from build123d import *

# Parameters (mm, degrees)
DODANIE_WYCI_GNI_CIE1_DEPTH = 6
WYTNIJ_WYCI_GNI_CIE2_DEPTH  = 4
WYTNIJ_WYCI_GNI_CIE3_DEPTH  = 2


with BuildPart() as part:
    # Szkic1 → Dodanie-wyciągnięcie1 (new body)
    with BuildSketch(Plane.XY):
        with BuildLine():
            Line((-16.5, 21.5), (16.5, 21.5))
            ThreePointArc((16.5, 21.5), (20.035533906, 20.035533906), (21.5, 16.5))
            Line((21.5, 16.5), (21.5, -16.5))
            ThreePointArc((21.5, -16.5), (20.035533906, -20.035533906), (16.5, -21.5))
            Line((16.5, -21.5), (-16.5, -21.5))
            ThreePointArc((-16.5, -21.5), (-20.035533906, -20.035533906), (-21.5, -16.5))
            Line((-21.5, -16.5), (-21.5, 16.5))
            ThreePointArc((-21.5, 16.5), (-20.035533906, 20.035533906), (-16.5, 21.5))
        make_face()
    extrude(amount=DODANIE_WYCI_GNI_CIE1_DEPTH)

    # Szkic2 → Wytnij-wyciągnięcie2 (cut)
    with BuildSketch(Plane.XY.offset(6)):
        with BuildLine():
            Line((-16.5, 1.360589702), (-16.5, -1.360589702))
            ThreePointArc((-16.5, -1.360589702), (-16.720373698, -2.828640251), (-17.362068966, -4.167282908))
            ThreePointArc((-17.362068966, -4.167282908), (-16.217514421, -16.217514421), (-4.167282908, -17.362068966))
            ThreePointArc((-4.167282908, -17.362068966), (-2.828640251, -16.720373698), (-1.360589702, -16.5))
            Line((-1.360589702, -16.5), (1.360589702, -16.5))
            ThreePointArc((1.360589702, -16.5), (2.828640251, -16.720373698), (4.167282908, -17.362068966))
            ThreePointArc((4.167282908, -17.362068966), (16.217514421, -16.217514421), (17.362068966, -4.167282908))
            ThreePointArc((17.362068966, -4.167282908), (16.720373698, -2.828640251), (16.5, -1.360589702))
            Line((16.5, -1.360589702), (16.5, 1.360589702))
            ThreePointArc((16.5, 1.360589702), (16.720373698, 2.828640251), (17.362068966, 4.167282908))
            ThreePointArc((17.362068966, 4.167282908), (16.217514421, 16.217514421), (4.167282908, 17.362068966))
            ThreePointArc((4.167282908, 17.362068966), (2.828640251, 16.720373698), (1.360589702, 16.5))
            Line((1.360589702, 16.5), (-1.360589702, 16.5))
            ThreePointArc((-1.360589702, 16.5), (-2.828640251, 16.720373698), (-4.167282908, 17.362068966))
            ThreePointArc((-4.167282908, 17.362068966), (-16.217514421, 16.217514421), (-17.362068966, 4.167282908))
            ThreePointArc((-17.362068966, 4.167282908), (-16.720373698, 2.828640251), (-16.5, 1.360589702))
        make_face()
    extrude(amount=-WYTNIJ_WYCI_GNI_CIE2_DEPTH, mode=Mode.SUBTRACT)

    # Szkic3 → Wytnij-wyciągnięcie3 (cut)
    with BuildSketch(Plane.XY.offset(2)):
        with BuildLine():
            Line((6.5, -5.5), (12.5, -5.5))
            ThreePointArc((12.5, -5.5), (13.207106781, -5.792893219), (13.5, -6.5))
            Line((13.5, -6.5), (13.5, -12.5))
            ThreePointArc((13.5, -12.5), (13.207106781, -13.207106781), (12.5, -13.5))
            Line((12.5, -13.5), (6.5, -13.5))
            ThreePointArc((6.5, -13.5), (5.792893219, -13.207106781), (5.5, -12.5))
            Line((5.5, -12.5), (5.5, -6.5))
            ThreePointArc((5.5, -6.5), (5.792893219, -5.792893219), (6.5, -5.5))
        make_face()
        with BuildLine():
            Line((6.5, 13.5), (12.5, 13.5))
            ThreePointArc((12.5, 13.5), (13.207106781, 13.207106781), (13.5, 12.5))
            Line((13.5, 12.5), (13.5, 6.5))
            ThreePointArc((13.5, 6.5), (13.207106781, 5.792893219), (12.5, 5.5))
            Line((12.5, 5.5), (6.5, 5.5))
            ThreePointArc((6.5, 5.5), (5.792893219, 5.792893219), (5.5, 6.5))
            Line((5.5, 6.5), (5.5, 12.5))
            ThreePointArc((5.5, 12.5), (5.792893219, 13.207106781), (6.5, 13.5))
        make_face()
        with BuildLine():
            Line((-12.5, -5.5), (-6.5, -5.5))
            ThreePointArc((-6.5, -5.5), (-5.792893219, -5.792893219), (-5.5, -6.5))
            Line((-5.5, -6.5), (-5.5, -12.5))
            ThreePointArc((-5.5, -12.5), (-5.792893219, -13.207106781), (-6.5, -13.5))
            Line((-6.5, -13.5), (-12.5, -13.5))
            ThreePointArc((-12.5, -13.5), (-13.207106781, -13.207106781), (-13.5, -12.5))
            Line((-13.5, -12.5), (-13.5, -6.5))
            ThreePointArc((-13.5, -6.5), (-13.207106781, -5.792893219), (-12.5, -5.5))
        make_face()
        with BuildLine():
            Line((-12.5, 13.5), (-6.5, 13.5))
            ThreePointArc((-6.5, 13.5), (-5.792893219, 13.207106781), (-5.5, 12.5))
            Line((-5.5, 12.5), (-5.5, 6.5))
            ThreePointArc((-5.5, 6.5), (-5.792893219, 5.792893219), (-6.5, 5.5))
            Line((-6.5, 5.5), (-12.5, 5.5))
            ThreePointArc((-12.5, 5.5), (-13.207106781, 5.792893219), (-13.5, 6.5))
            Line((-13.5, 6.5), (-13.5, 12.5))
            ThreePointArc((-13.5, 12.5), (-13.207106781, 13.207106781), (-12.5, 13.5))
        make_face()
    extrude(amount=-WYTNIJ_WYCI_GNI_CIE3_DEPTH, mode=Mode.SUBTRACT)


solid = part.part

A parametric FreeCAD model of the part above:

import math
import FreeCAD as App
import Part
import Sketcher

doc = App.newDocument("Part")
body = doc.addObject("PartDesign::Body", "Body")

# Sketch on XY plane
sketch1 = doc.addObject("Sketcher::SketchObject", "Sketch")
body.addObject(sketch1)
sketch1.AttachmentSupport = (doc.XY_Plane, [""])
sketch1.MapMode = "FlatFace"
sketch1.addGeometry(Part.LineSegment(App.Vector(16, 22, 0), App.Vector(-16, 22, 0)), False)
sketch1.addGeometry(Part.ArcOfCircle(Part.Circle(App.Vector(-16, 16, 0), App.Vector(0, 0, 1), 5), math.radians(90), math.radians(180)), False)
sketch1.addGeometry(Part.LineSegment(App.Vector(-22, 16, 0), App.Vector(-22, -16, 0)), False)
sketch1.addGeometry(Part.ArcOfCircle(Part.Circle(App.Vector(-16, -16, 0), App.Vector(0, 0, 1), 5), math.radians(180), math.radians(270)), False)
sketch1.addGeometry(Part.LineSegment(App.Vector(-16, -22, 0), App.Vector(16, -22, 0)), False)
sketch1.addGeometry(Part.ArcOfCircle(Part.Circle(App.Vector(16, -16, 0), App.Vector(0, 0, 1), 5), math.radians(-90), math.radians(0)), False)
sketch1.addGeometry(Part.LineSegment(App.Vector(22, -16, 0), App.Vector(22, 16, 0)), False)
sketch1.addGeometry(Part.ArcOfCircle(Part.Circle(App.Vector(16, 16, 0), App.Vector(0, 0, 1), 5), math.radians(0), math.radians(90)), False)
sketch1.addConstraint(Sketcher.Constraint("Tangent", 0, 2, 1, 1))
sketch1.addConstraint(Sketcher.Constraint("Tangent", 1, 2, 2, 1))
sketch1.addConstraint(Sketcher.Constraint("Tangent", 2, 2, 3, 1))
sketch1.addConstraint(Sketcher.Constraint("Tangent", 3, 2, 4, 1))
sketch1.addConstraint(Sketcher.Constraint("Tangent", 4, 2, 5, 1))
sketch1.addConstraint(Sketcher.Constraint("Tangent", 5, 2, 6, 1))
sketch1.addConstraint(Sketcher.Constraint("Tangent", 6, 2, 7, 1))
sketch1.addConstraint(Sketcher.Constraint("Tangent", 7, 2, 0, 1))
sketch1.addConstraint(Sketcher.Constraint("Horizontal", 0))
sketch1.addConstraint(Sketcher.Constraint("Vertical", 2))
sketch1.addConstraint(Sketcher.Constraint("Horizontal", 4))
sketch1.addConstraint(Sketcher.Constraint("Vertical", 6))
sketch1.addConstraint(Sketcher.Constraint("Equal", 1, 3))
sketch1.addConstraint(Sketcher.Constraint("Equal", 3, 5))
sketch1.addConstraint(Sketcher.Constraint("Equal", 5, 7))
sketch1.addConstraint(Sketcher.Constraint("Symmetric", 1, 3, 5, 3, -1, 1))
sketch1.addConstraint(Sketcher.Constraint("Equal", 4, 2))
sketch1.addConstraint(Sketcher.Constraint("Radius", 1, 5.0))
sketch1.addConstraint(Sketcher.Constraint("DistanceX", 0, 2, 0, 1, 33.0))
pad1 = doc.addObject("PartDesign::Pad", "Pad")
body.addObject(pad1)
pad1.Profile = sketch1
pad1.Length = 6

# Sketch on XY plane
sketch2 = doc.addObject("Sketcher::SketchObject", "Sketch001")
body.addObject(sketch2)
sketch2.AttachmentSupport = (doc.XY_Plane, [""])
sketch2.MapMode = "FlatFace"
sketch2.AttachmentOffset = App.Placement(App.Vector(0, 0, 6), App.Rotation())
sketch2.addGeometry(Part.LineSegment(App.Vector(-16.5, 1.4, 0), App.Vector(-16.5, -1.4, 0)), False)
sketch2.addGeometry(Part.ArcOfCircle(Part.Circle(App.Vector(-21.5, -1.4, 0), App.Vector(0, 0, 1), 5), math.radians(-34), math.radians(0)), False)
sketch2.addGeometry(Part.ArcOfCircle(Part.Circle(App.Vector(-9.5, -9.5, 0), App.Vector(0, 0, 1), 9.5), math.radians(146), math.radians(304)), False)
sketch2.addGeometry(Part.ArcOfCircle(Part.Circle(App.Vector(-1.4, -21.5, 0), App.Vector(0, 0, 1), 5), math.radians(90), math.radians(124)), False)
sketch2.addGeometry(Part.LineSegment(App.Vector(-1.4, -16.5, 0), App.Vector(1.4, -16.5, 0)), False)
sketch2.addGeometry(Part.ArcOfCircle(Part.Circle(App.Vector(1.4, -21.5, 0), App.Vector(0, 0, 1), 5), math.radians(56), math.radians(90)), False)
sketch2.addGeometry(Part.ArcOfCircle(Part.Circle(App.Vector(9.5, -9.5, 0), App.Vector(0, 0, 1), 9.5), math.radians(-124), math.radians(34)), False)
sketch2.addGeometry(Part.ArcOfCircle(Part.Circle(App.Vector(21.5, -1.4, 0), App.Vector(0, 0, 1), 5), math.radians(180), math.radians(214)), False)
sketch2.addGeometry(Part.LineSegment(App.Vector(16.5, -1.4, 0), App.Vector(16.5, 1.4, 0)), False)
sketch2.addGeometry(Part.ArcOfCircle(Part.Circle(App.Vector(21.5, 1.4, 0), App.Vector(0, 0, 1), 5), math.radians(146), math.radians(180)), False)
sketch2.addGeometry(Part.ArcOfCircle(Part.Circle(App.Vector(9.5, 9.5, 0), App.Vector(0, 0, 1), 9.5), math.radians(-34), math.radians(124)), False)
sketch2.addGeometry(Part.ArcOfCircle(Part.Circle(App.Vector(1.4, 21.5, 0), App.Vector(0, 0, 1), 5), math.radians(-90), math.radians(-56)), False)
sketch2.addGeometry(Part.LineSegment(App.Vector(1.4, 16.5, 0), App.Vector(-1.4, 16.5, 0)), False)
sketch2.addGeometry(Part.ArcOfCircle(Part.Circle(App.Vector(-1.4, 21.5, 0), App.Vector(0, 0, 1), 5), math.radians(-124), math.radians(-90)), False)
sketch2.addGeometry(Part.ArcOfCircle(Part.Circle(App.Vector(-9.5, 9.5, 0), App.Vector(0, 0, 1), 9.5), math.radians(56), math.radians(214)), False)
sketch2.addGeometry(Part.ArcOfCircle(Part.Circle(App.Vector(-21.5, 1.4, 0), App.Vector(0, 0, 1), 5), math.radians(0), math.radians(34)), False)
sketch2.addConstraint(Sketcher.Constraint("Tangent", 0, 2, 1, 2))
sketch2.addConstraint(Sketcher.Constraint("Tangent", 1, 1, 2, 1))
sketch2.addConstraint(Sketcher.Constraint("Tangent", 2, 2, 3, 2))
sketch2.addConstraint(Sketcher.Constraint("Tangent", 3, 1, 4, 1))
sketch2.addConstraint(Sketcher.Constraint("Tangent", 4, 2, 5, 2))
sketch2.addConstraint(Sketcher.Constraint("Tangent", 5, 1, 6, 1))
sketch2.addConstraint(Sketcher.Constraint("Tangent", 6, 2, 7, 2))
sketch2.addConstraint(Sketcher.Constraint("Tangent", 7, 1, 8, 1))
sketch2.addConstraint(Sketcher.Constraint("Tangent", 8, 2, 9, 2))
sketch2.addConstraint(Sketcher.Constraint("Tangent", 9, 1, 10, 1))
sketch2.addConstraint(Sketcher.Constraint("Tangent", 10, 2, 11, 2))
sketch2.addConstraint(Sketcher.Constraint("Tangent", 11, 1, 12, 1))
sketch2.addConstraint(Sketcher.Constraint("Tangent", 12, 2, 13, 2))
sketch2.addConstraint(Sketcher.Constraint("Tangent", 13, 1, 14, 1))
sketch2.addConstraint(Sketcher.Constraint("Tangent", 14, 2, 15, 2))
sketch2.addConstraint(Sketcher.Constraint("Tangent", 15, 1, 0, 1))
sketch2.addConstraint(Sketcher.Constraint("Vertical", 0))
sketch2.addConstraint(Sketcher.Constraint("Horizontal", 4))
sketch2.addConstraint(Sketcher.Constraint("Vertical", 8))
sketch2.addConstraint(Sketcher.Constraint("Horizontal", 12))
sketch2.addConstraint(Sketcher.Constraint("Equal", 1, 3))
sketch2.addConstraint(Sketcher.Constraint("Equal", 3, 5))
sketch2.addConstraint(Sketcher.Constraint("Equal", 2, 6))
sketch2.addConstraint(Sketcher.Constraint("Equal", 5, 7))
sketch2.addConstraint(Sketcher.Constraint("Equal", 7, 9))
sketch2.addConstraint(Sketcher.Constraint("Equal", 6, 10))
sketch2.addConstraint(Sketcher.Constraint("Equal", 9, 11))
sketch2.addConstraint(Sketcher.Constraint("Equal", 11, 13))
sketch2.addConstraint(Sketcher.Constraint("Equal", 10, 14))
sketch2.addConstraint(Sketcher.Constraint("Equal", 13, 15))
sketch2.addConstraint(Sketcher.Constraint("Symmetric", 1, 3, 9, 3, -1, 1))
sketch2.addConstraint(Sketcher.Constraint("Symmetric", 3, 3, 11, 3, -1, 1))
sketch2.addConstraint(Sketcher.Constraint("Symmetric", 6, 3, 14, 3, -1, 1))
sketch2.addConstraint(Sketcher.Constraint("Symmetric", 2, 3, 6, 3, -2))
sketch2.addConstraint(Sketcher.Constraint("Equal", 12, 0))
sketch2.addConstraint(Sketcher.Constraint("Radius", 1, 5.0))
sketch2.addConstraint(Sketcher.Constraint("Radius", 2, 9.5))
sketch2.addConstraint(Sketcher.Constraint("DistanceX", 1, 3, 2, 3, 12.0))
sketch2.addConstraint(Sketcher.Constraint("DistanceY", 3, 3, 2, 3, 12.0))
sketch2.addConstraint(Sketcher.Constraint("DistanceX", 2, 3, 6, 3, 19.0))
pocket1 = doc.addObject("PartDesign::Pocket", "Pocket")
body.addObject(pocket1)
pocket1.Profile = sketch2
pocket1.Length = 4

# Sketch on XY plane
sketch3 = doc.addObject("Sketcher::SketchObject", "Sketch002")
body.addObject(sketch3)
sketch3.AttachmentSupport = (doc.XY_Plane, [""])
sketch3.MapMode = "FlatFace"
sketch3.AttachmentOffset = App.Placement(App.Vector(0, 0, 2), App.Rotation())
sketch3.addGeometry(Part.LineSegment(App.Vector(12.5, -5.5, 0), App.Vector(6.5, -5.5, 0)), False)
sketch3.addGeometry(Part.ArcOfCircle(Part.Circle(App.Vector(6.5, -6.5, 0), App.Vector(0, 0, 1), 1), math.radians(90), math.radians(180)), False)
sketch3.addGeometry(Part.LineSegment(App.Vector(5.5, -6.5, 0), App.Vector(5.5, -12.5, 0)), False)
sketch3.addGeometry(Part.ArcOfCircle(Part.Circle(App.Vector(6.5, -12.5, 0), App.Vector(0, 0, 1), 1), math.radians(-180), math.radians(-90)), False)
sketch3.addGeometry(Part.LineSegment(App.Vector(6.5, -13.5, 0), App.Vector(12.5, -13.5, 0)), False)
sketch3.addGeometry(Part.ArcOfCircle(Part.Circle(App.Vector(12.5, -12.5, 0), App.Vector(0, 0, 1), 1), math.radians(-90), math.radians(0)), False)
sketch3.addGeometry(Part.LineSegment(App.Vector(13.5, -12.5, 0), App.Vector(13.5, -6.5, 0)), False)
sketch3.addGeometry(Part.ArcOfCircle(Part.Circle(App.Vector(12.5, -6.5, 0), App.Vector(0, 0, 1), 1), math.radians(0), math.radians(90)), False)
sketch3.addGeometry(Part.LineSegment(App.Vector(12.5, 13.5, 0), App.Vector(6.5, 13.5, 0)), False)
sketch3.addGeometry(Part.ArcOfCircle(Part.Circle(App.Vector(6.5, 12.5, 0), App.Vector(0, 0, 1), 1), math.radians(90), math.radians(180)), False)
sketch3.addGeometry(Part.LineSegment(App.Vector(5.5, 12.5, 0), App.Vector(5.5, 6.5, 0)), False)
sketch3.addGeometry(Part.ArcOfCircle(Part.Circle(App.Vector(6.5, 6.5, 0), App.Vector(0, 0, 1), 1), math.radians(-180), math.radians(-90)), False)
sketch3.addGeometry(Part.LineSegment(App.Vector(6.5, 5.5, 0), App.Vector(12.5, 5.5, 0)), False)
sketch3.addGeometry(Part.ArcOfCircle(Part.Circle(App.Vector(12.5, 6.5, 0), App.Vector(0, 0, 1), 1), math.radians(-90), math.radians(0)), False)
sketch3.addGeometry(Part.LineSegment(App.Vector(13.5, 6.5, 0), App.Vector(13.5, 12.5, 0)), False)
sketch3.addGeometry(Part.ArcOfCircle(Part.Circle(App.Vector(12.5, 12.5, 0), App.Vector(0, 0, 1), 1), math.radians(0), math.radians(90)), False)
sketch3.addGeometry(Part.LineSegment(App.Vector(-6.5, -5.5, 0), App.Vector(-12.5, -5.5, 0)), False)
sketch3.addGeometry(Part.ArcOfCircle(Part.Circle(App.Vector(-12.5, -6.5, 0), App.Vector(0, 0, 1), 1), math.radians(90), math.radians(180)), False)
sketch3.addGeometry(Part.LineSegment(App.Vector(-13.5, -6.5, 0), App.Vector(-13.5, -12.5, 0)), False)
sketch3.addGeometry(Part.ArcOfCircle(Part.Circle(App.Vector(-12.5, -12.5, 0), App.Vector(0, 0, 1), 1), math.radians(-180), math.radians(-90)), False)
sketch3.addGeometry(Part.LineSegment(App.Vector(-12.5, -13.5, 0), App.Vector(-6.5, -13.5, 0)), False)
sketch3.addGeometry(Part.ArcOfCircle(Part.Circle(App.Vector(-6.5, -12.5, 0), App.Vector(0, 0, 1), 1), math.radians(-90), math.radians(0)), False)
sketch3.addGeometry(Part.LineSegment(App.Vector(-5.5, -12.5, 0), App.Vector(-5.5, -6.5, 0)), False)
sketch3.addGeometry(Part.ArcOfCircle(Part.Circle(App.Vector(-6.5, -6.5, 0), App.Vector(0, 0, 1), 1), math.radians(0), math.radians(90)), False)
sketch3.addGeometry(Part.LineSegment(App.Vector(-6.5, 13.5, 0), App.Vector(-12.5, 13.5, 0)), False)
sketch3.addGeometry(Part.ArcOfCircle(Part.Circle(App.Vector(-12.5, 12.5, 0), App.Vector(0, 0, 1), 1), math.radians(90), math.radians(180)), False)
sketch3.addGeometry(Part.LineSegment(App.Vector(-13.5, 12.5, 0), App.Vector(-13.5, 6.5, 0)), False)
sketch3.addGeometry(Part.ArcOfCircle(Part.Circle(App.Vector(-12.5, 6.5, 0), App.Vector(0, 0, 1), 1), math.radians(-180), math.radians(-90)), False)
sketch3.addGeometry(Part.LineSegment(App.Vector(-12.5, 5.5, 0), App.Vector(-6.5, 5.5, 0)), False)
sketch3.addGeometry(Part.ArcOfCircle(Part.Circle(App.Vector(-6.5, 6.5, 0), App.Vector(0, 0, 1), 1), math.radians(-90), math.radians(0)), False)
sketch3.addGeometry(Part.LineSegment(App.Vector(-5.5, 6.5, 0), App.Vector(-5.5, 12.5, 0)), False)
sketch3.addGeometry(Part.ArcOfCircle(Part.Circle(App.Vector(-6.5, 12.5, 0), App.Vector(0, 0, 1), 1), math.radians(0), math.radians(90)), False)
sketch3.addConstraint(Sketcher.Constraint("Tangent", 0, 2, 1, 1))
sketch3.addConstraint(Sketcher.Constraint("Tangent", 1, 2, 2, 1))
sketch3.addConstraint(Sketcher.Constraint("Tangent", 2, 2, 3, 1))
sketch3.addConstraint(Sketcher.Constraint("Tangent", 3, 2, 4, 1))
sketch3.addConstraint(Sketcher.Constraint("Tangent", 4, 2, 5, 1))
sketch3.addConstraint(Sketcher.Constraint("Tangent", 5, 2, 6, 1))
sketch3.addConstraint(Sketcher.Constraint("Tangent", 6, 2, 7, 1))
sketch3.addConstraint(Sketcher.Constraint("Tangent", 7, 2, 0, 1))
sketch3.addConstraint(Sketcher.Constraint("Tangent", 8, 2, 9, 1))
sketch3.addConstraint(Sketcher.Constraint("Tangent", 9, 2, 10, 1))
sketch3.addConstraint(Sketcher.Constraint("Tangent", 10, 2, 11, 1))
sketch3.addConstraint(Sketcher.Constraint("Tangent", 11, 2, 12, 1))
sketch3.addConstraint(Sketcher.Constraint("Tangent", 12, 2, 13, 1))
sketch3.addConstraint(Sketcher.Constraint("Tangent", 13, 2, 14, 1))
sketch3.addConstraint(Sketcher.Constraint("Tangent", 14, 2, 15, 1))
sketch3.addConstraint(Sketcher.Constraint("Tangent", 15, 2, 8, 1))
sketch3.addConstraint(Sketcher.Constraint("Tangent", 16, 2, 17, 1))
sketch3.addConstraint(Sketcher.Constraint("Tangent", 17, 2, 18, 1))
sketch3.addConstraint(Sketcher.Constraint("Tangent", 18, 2, 19, 1))
sketch3.addConstraint(Sketcher.Constraint("Tangent", 19, 2, 20, 1))
sketch3.addConstraint(Sketcher.Constraint("Tangent", 20, 2, 21, 1))
sketch3.addConstraint(Sketcher.Constraint("Tangent", 21, 2, 22, 1))
sketch3.addConstraint(Sketcher.Constraint("Tangent", 22, 2, 23, 1))
sketch3.addConstraint(Sketcher.Constraint("Tangent", 23, 2, 16, 1))
sketch3.addConstraint(Sketcher.Constraint("Tangent", 24, 2, 25, 1))
sketch3.addConstraint(Sketcher.Constraint("Tangent", 25, 2, 26, 1))
sketch3.addConstraint(Sketcher.Constraint("Tangent", 26, 2, 27, 1))
sketch3.addConstraint(Sketcher.Constraint("Tangent", 27, 2, 28, 1))
sketch3.addConstraint(Sketcher.Constraint("Tangent", 28, 2, 29, 1))
sketch3.addConstraint(Sketcher.Constraint("Tangent", 29, 2, 30, 1))
sketch3.addConstraint(Sketcher.Constraint("Tangent", 30, 2, 31, 1))
sketch3.addConstraint(Sketcher.Constraint("Tangent", 31, 2, 24, 1))
sketch3.addConstraint(Sketcher.Constraint("Horizontal", 0))
sketch3.addConstraint(Sketcher.Constraint("Vertical", 2))
sketch3.addConstraint(Sketcher.Constraint("Horizontal", 4))
sketch3.addConstraint(Sketcher.Constraint("Vertical", 6))
sketch3.addConstraint(Sketcher.Constraint("Horizontal", 8))
sketch3.addConstraint(Sketcher.Constraint("Vertical", 10))
sketch3.addConstraint(Sketcher.Constraint("Horizontal", 12))
sketch3.addConstraint(Sketcher.Constraint("Vertical", 14))
sketch3.addConstraint(Sketcher.Constraint("Horizontal", 16))
sketch3.addConstraint(Sketcher.Constraint("Vertical", 18))
sketch3.addConstraint(Sketcher.Constraint("Horizontal", 20))
sketch3.addConstraint(Sketcher.Constraint("Vertical", 22))
sketch3.addConstraint(Sketcher.Constraint("Horizontal", 24))
sketch3.addConstraint(Sketcher.Constraint("Vertical", 26))
sketch3.addConstraint(Sketcher.Constraint("Horizontal", 28))
sketch3.addConstraint(Sketcher.Constraint("Vertical", 30))
sketch3.addConstraint(Sketcher.Constraint("Equal", 1, 3))
sketch3.addConstraint(Sketcher.Constraint("Equal", 3, 5))
sketch3.addConstraint(Sketcher.Constraint("Equal", 5, 7))
sketch3.addConstraint(Sketcher.Constraint("Equal", 7, 9))
sketch3.addConstraint(Sketcher.Constraint("Equal", 9, 11))
sketch3.addConstraint(Sketcher.Constraint("Equal", 11, 13))
sketch3.addConstraint(Sketcher.Constraint("Equal", 13, 15))
sketch3.addConstraint(Sketcher.Constraint("Equal", 15, 17))
sketch3.addConstraint(Sketcher.Constraint("Equal", 17, 19))
sketch3.addConstraint(Sketcher.Constraint("Equal", 19, 21))
sketch3.addConstraint(Sketcher.Constraint("Equal", 21, 23))
sketch3.addConstraint(Sketcher.Constraint("Equal", 23, 25))
sketch3.addConstraint(Sketcher.Constraint("Equal", 25, 27))
sketch3.addConstraint(Sketcher.Constraint("Equal", 27, 29))
sketch3.addConstraint(Sketcher.Constraint("Equal", 29, 31))
sketch3.addConstraint(Sketcher.Constraint("Symmetric", 13, 3, 17, 3, -1, 1))
sketch3.addConstraint(Sketcher.Constraint("Symmetric", 9, 3, 21, 3, -1, 1))
sketch3.addConstraint(Sketcher.Constraint("Symmetric", 5, 3, 25, 3, -1, 1))
sketch3.addConstraint(Sketcher.Constraint("Symmetric", 1, 3, 29, 3, -1, 1))
sketch3.addConstraint(Sketcher.Constraint("Symmetric", 7, 3, 17, 3, -2))
sketch3.addConstraint(Sketcher.Constraint("Symmetric", 3, 3, 21, 3, -2))
sketch3.addConstraint(Sketcher.Constraint("Equal", 28, 2))
sketch3.addConstraint(Sketcher.Constraint("Radius", 1, 1.0))
sketch3.addConstraint(Sketcher.Constraint("DistanceX", 0, 2, 0, 1, 6.0))
sketch3.addConstraint(Sketcher.Constraint("DistanceY", 1, 3, 9, 3, 19.0))
sketch3.addConstraint(Sketcher.Constraint("DistanceX", 17, 3, 1, 3, 19.0))
pocket2 = doc.addObject("PartDesign::Pocket", "Pocket001")
body.addObject(pocket2)
pocket2.Profile = sketch3
pocket2.Length = 2

doc.recompute()
